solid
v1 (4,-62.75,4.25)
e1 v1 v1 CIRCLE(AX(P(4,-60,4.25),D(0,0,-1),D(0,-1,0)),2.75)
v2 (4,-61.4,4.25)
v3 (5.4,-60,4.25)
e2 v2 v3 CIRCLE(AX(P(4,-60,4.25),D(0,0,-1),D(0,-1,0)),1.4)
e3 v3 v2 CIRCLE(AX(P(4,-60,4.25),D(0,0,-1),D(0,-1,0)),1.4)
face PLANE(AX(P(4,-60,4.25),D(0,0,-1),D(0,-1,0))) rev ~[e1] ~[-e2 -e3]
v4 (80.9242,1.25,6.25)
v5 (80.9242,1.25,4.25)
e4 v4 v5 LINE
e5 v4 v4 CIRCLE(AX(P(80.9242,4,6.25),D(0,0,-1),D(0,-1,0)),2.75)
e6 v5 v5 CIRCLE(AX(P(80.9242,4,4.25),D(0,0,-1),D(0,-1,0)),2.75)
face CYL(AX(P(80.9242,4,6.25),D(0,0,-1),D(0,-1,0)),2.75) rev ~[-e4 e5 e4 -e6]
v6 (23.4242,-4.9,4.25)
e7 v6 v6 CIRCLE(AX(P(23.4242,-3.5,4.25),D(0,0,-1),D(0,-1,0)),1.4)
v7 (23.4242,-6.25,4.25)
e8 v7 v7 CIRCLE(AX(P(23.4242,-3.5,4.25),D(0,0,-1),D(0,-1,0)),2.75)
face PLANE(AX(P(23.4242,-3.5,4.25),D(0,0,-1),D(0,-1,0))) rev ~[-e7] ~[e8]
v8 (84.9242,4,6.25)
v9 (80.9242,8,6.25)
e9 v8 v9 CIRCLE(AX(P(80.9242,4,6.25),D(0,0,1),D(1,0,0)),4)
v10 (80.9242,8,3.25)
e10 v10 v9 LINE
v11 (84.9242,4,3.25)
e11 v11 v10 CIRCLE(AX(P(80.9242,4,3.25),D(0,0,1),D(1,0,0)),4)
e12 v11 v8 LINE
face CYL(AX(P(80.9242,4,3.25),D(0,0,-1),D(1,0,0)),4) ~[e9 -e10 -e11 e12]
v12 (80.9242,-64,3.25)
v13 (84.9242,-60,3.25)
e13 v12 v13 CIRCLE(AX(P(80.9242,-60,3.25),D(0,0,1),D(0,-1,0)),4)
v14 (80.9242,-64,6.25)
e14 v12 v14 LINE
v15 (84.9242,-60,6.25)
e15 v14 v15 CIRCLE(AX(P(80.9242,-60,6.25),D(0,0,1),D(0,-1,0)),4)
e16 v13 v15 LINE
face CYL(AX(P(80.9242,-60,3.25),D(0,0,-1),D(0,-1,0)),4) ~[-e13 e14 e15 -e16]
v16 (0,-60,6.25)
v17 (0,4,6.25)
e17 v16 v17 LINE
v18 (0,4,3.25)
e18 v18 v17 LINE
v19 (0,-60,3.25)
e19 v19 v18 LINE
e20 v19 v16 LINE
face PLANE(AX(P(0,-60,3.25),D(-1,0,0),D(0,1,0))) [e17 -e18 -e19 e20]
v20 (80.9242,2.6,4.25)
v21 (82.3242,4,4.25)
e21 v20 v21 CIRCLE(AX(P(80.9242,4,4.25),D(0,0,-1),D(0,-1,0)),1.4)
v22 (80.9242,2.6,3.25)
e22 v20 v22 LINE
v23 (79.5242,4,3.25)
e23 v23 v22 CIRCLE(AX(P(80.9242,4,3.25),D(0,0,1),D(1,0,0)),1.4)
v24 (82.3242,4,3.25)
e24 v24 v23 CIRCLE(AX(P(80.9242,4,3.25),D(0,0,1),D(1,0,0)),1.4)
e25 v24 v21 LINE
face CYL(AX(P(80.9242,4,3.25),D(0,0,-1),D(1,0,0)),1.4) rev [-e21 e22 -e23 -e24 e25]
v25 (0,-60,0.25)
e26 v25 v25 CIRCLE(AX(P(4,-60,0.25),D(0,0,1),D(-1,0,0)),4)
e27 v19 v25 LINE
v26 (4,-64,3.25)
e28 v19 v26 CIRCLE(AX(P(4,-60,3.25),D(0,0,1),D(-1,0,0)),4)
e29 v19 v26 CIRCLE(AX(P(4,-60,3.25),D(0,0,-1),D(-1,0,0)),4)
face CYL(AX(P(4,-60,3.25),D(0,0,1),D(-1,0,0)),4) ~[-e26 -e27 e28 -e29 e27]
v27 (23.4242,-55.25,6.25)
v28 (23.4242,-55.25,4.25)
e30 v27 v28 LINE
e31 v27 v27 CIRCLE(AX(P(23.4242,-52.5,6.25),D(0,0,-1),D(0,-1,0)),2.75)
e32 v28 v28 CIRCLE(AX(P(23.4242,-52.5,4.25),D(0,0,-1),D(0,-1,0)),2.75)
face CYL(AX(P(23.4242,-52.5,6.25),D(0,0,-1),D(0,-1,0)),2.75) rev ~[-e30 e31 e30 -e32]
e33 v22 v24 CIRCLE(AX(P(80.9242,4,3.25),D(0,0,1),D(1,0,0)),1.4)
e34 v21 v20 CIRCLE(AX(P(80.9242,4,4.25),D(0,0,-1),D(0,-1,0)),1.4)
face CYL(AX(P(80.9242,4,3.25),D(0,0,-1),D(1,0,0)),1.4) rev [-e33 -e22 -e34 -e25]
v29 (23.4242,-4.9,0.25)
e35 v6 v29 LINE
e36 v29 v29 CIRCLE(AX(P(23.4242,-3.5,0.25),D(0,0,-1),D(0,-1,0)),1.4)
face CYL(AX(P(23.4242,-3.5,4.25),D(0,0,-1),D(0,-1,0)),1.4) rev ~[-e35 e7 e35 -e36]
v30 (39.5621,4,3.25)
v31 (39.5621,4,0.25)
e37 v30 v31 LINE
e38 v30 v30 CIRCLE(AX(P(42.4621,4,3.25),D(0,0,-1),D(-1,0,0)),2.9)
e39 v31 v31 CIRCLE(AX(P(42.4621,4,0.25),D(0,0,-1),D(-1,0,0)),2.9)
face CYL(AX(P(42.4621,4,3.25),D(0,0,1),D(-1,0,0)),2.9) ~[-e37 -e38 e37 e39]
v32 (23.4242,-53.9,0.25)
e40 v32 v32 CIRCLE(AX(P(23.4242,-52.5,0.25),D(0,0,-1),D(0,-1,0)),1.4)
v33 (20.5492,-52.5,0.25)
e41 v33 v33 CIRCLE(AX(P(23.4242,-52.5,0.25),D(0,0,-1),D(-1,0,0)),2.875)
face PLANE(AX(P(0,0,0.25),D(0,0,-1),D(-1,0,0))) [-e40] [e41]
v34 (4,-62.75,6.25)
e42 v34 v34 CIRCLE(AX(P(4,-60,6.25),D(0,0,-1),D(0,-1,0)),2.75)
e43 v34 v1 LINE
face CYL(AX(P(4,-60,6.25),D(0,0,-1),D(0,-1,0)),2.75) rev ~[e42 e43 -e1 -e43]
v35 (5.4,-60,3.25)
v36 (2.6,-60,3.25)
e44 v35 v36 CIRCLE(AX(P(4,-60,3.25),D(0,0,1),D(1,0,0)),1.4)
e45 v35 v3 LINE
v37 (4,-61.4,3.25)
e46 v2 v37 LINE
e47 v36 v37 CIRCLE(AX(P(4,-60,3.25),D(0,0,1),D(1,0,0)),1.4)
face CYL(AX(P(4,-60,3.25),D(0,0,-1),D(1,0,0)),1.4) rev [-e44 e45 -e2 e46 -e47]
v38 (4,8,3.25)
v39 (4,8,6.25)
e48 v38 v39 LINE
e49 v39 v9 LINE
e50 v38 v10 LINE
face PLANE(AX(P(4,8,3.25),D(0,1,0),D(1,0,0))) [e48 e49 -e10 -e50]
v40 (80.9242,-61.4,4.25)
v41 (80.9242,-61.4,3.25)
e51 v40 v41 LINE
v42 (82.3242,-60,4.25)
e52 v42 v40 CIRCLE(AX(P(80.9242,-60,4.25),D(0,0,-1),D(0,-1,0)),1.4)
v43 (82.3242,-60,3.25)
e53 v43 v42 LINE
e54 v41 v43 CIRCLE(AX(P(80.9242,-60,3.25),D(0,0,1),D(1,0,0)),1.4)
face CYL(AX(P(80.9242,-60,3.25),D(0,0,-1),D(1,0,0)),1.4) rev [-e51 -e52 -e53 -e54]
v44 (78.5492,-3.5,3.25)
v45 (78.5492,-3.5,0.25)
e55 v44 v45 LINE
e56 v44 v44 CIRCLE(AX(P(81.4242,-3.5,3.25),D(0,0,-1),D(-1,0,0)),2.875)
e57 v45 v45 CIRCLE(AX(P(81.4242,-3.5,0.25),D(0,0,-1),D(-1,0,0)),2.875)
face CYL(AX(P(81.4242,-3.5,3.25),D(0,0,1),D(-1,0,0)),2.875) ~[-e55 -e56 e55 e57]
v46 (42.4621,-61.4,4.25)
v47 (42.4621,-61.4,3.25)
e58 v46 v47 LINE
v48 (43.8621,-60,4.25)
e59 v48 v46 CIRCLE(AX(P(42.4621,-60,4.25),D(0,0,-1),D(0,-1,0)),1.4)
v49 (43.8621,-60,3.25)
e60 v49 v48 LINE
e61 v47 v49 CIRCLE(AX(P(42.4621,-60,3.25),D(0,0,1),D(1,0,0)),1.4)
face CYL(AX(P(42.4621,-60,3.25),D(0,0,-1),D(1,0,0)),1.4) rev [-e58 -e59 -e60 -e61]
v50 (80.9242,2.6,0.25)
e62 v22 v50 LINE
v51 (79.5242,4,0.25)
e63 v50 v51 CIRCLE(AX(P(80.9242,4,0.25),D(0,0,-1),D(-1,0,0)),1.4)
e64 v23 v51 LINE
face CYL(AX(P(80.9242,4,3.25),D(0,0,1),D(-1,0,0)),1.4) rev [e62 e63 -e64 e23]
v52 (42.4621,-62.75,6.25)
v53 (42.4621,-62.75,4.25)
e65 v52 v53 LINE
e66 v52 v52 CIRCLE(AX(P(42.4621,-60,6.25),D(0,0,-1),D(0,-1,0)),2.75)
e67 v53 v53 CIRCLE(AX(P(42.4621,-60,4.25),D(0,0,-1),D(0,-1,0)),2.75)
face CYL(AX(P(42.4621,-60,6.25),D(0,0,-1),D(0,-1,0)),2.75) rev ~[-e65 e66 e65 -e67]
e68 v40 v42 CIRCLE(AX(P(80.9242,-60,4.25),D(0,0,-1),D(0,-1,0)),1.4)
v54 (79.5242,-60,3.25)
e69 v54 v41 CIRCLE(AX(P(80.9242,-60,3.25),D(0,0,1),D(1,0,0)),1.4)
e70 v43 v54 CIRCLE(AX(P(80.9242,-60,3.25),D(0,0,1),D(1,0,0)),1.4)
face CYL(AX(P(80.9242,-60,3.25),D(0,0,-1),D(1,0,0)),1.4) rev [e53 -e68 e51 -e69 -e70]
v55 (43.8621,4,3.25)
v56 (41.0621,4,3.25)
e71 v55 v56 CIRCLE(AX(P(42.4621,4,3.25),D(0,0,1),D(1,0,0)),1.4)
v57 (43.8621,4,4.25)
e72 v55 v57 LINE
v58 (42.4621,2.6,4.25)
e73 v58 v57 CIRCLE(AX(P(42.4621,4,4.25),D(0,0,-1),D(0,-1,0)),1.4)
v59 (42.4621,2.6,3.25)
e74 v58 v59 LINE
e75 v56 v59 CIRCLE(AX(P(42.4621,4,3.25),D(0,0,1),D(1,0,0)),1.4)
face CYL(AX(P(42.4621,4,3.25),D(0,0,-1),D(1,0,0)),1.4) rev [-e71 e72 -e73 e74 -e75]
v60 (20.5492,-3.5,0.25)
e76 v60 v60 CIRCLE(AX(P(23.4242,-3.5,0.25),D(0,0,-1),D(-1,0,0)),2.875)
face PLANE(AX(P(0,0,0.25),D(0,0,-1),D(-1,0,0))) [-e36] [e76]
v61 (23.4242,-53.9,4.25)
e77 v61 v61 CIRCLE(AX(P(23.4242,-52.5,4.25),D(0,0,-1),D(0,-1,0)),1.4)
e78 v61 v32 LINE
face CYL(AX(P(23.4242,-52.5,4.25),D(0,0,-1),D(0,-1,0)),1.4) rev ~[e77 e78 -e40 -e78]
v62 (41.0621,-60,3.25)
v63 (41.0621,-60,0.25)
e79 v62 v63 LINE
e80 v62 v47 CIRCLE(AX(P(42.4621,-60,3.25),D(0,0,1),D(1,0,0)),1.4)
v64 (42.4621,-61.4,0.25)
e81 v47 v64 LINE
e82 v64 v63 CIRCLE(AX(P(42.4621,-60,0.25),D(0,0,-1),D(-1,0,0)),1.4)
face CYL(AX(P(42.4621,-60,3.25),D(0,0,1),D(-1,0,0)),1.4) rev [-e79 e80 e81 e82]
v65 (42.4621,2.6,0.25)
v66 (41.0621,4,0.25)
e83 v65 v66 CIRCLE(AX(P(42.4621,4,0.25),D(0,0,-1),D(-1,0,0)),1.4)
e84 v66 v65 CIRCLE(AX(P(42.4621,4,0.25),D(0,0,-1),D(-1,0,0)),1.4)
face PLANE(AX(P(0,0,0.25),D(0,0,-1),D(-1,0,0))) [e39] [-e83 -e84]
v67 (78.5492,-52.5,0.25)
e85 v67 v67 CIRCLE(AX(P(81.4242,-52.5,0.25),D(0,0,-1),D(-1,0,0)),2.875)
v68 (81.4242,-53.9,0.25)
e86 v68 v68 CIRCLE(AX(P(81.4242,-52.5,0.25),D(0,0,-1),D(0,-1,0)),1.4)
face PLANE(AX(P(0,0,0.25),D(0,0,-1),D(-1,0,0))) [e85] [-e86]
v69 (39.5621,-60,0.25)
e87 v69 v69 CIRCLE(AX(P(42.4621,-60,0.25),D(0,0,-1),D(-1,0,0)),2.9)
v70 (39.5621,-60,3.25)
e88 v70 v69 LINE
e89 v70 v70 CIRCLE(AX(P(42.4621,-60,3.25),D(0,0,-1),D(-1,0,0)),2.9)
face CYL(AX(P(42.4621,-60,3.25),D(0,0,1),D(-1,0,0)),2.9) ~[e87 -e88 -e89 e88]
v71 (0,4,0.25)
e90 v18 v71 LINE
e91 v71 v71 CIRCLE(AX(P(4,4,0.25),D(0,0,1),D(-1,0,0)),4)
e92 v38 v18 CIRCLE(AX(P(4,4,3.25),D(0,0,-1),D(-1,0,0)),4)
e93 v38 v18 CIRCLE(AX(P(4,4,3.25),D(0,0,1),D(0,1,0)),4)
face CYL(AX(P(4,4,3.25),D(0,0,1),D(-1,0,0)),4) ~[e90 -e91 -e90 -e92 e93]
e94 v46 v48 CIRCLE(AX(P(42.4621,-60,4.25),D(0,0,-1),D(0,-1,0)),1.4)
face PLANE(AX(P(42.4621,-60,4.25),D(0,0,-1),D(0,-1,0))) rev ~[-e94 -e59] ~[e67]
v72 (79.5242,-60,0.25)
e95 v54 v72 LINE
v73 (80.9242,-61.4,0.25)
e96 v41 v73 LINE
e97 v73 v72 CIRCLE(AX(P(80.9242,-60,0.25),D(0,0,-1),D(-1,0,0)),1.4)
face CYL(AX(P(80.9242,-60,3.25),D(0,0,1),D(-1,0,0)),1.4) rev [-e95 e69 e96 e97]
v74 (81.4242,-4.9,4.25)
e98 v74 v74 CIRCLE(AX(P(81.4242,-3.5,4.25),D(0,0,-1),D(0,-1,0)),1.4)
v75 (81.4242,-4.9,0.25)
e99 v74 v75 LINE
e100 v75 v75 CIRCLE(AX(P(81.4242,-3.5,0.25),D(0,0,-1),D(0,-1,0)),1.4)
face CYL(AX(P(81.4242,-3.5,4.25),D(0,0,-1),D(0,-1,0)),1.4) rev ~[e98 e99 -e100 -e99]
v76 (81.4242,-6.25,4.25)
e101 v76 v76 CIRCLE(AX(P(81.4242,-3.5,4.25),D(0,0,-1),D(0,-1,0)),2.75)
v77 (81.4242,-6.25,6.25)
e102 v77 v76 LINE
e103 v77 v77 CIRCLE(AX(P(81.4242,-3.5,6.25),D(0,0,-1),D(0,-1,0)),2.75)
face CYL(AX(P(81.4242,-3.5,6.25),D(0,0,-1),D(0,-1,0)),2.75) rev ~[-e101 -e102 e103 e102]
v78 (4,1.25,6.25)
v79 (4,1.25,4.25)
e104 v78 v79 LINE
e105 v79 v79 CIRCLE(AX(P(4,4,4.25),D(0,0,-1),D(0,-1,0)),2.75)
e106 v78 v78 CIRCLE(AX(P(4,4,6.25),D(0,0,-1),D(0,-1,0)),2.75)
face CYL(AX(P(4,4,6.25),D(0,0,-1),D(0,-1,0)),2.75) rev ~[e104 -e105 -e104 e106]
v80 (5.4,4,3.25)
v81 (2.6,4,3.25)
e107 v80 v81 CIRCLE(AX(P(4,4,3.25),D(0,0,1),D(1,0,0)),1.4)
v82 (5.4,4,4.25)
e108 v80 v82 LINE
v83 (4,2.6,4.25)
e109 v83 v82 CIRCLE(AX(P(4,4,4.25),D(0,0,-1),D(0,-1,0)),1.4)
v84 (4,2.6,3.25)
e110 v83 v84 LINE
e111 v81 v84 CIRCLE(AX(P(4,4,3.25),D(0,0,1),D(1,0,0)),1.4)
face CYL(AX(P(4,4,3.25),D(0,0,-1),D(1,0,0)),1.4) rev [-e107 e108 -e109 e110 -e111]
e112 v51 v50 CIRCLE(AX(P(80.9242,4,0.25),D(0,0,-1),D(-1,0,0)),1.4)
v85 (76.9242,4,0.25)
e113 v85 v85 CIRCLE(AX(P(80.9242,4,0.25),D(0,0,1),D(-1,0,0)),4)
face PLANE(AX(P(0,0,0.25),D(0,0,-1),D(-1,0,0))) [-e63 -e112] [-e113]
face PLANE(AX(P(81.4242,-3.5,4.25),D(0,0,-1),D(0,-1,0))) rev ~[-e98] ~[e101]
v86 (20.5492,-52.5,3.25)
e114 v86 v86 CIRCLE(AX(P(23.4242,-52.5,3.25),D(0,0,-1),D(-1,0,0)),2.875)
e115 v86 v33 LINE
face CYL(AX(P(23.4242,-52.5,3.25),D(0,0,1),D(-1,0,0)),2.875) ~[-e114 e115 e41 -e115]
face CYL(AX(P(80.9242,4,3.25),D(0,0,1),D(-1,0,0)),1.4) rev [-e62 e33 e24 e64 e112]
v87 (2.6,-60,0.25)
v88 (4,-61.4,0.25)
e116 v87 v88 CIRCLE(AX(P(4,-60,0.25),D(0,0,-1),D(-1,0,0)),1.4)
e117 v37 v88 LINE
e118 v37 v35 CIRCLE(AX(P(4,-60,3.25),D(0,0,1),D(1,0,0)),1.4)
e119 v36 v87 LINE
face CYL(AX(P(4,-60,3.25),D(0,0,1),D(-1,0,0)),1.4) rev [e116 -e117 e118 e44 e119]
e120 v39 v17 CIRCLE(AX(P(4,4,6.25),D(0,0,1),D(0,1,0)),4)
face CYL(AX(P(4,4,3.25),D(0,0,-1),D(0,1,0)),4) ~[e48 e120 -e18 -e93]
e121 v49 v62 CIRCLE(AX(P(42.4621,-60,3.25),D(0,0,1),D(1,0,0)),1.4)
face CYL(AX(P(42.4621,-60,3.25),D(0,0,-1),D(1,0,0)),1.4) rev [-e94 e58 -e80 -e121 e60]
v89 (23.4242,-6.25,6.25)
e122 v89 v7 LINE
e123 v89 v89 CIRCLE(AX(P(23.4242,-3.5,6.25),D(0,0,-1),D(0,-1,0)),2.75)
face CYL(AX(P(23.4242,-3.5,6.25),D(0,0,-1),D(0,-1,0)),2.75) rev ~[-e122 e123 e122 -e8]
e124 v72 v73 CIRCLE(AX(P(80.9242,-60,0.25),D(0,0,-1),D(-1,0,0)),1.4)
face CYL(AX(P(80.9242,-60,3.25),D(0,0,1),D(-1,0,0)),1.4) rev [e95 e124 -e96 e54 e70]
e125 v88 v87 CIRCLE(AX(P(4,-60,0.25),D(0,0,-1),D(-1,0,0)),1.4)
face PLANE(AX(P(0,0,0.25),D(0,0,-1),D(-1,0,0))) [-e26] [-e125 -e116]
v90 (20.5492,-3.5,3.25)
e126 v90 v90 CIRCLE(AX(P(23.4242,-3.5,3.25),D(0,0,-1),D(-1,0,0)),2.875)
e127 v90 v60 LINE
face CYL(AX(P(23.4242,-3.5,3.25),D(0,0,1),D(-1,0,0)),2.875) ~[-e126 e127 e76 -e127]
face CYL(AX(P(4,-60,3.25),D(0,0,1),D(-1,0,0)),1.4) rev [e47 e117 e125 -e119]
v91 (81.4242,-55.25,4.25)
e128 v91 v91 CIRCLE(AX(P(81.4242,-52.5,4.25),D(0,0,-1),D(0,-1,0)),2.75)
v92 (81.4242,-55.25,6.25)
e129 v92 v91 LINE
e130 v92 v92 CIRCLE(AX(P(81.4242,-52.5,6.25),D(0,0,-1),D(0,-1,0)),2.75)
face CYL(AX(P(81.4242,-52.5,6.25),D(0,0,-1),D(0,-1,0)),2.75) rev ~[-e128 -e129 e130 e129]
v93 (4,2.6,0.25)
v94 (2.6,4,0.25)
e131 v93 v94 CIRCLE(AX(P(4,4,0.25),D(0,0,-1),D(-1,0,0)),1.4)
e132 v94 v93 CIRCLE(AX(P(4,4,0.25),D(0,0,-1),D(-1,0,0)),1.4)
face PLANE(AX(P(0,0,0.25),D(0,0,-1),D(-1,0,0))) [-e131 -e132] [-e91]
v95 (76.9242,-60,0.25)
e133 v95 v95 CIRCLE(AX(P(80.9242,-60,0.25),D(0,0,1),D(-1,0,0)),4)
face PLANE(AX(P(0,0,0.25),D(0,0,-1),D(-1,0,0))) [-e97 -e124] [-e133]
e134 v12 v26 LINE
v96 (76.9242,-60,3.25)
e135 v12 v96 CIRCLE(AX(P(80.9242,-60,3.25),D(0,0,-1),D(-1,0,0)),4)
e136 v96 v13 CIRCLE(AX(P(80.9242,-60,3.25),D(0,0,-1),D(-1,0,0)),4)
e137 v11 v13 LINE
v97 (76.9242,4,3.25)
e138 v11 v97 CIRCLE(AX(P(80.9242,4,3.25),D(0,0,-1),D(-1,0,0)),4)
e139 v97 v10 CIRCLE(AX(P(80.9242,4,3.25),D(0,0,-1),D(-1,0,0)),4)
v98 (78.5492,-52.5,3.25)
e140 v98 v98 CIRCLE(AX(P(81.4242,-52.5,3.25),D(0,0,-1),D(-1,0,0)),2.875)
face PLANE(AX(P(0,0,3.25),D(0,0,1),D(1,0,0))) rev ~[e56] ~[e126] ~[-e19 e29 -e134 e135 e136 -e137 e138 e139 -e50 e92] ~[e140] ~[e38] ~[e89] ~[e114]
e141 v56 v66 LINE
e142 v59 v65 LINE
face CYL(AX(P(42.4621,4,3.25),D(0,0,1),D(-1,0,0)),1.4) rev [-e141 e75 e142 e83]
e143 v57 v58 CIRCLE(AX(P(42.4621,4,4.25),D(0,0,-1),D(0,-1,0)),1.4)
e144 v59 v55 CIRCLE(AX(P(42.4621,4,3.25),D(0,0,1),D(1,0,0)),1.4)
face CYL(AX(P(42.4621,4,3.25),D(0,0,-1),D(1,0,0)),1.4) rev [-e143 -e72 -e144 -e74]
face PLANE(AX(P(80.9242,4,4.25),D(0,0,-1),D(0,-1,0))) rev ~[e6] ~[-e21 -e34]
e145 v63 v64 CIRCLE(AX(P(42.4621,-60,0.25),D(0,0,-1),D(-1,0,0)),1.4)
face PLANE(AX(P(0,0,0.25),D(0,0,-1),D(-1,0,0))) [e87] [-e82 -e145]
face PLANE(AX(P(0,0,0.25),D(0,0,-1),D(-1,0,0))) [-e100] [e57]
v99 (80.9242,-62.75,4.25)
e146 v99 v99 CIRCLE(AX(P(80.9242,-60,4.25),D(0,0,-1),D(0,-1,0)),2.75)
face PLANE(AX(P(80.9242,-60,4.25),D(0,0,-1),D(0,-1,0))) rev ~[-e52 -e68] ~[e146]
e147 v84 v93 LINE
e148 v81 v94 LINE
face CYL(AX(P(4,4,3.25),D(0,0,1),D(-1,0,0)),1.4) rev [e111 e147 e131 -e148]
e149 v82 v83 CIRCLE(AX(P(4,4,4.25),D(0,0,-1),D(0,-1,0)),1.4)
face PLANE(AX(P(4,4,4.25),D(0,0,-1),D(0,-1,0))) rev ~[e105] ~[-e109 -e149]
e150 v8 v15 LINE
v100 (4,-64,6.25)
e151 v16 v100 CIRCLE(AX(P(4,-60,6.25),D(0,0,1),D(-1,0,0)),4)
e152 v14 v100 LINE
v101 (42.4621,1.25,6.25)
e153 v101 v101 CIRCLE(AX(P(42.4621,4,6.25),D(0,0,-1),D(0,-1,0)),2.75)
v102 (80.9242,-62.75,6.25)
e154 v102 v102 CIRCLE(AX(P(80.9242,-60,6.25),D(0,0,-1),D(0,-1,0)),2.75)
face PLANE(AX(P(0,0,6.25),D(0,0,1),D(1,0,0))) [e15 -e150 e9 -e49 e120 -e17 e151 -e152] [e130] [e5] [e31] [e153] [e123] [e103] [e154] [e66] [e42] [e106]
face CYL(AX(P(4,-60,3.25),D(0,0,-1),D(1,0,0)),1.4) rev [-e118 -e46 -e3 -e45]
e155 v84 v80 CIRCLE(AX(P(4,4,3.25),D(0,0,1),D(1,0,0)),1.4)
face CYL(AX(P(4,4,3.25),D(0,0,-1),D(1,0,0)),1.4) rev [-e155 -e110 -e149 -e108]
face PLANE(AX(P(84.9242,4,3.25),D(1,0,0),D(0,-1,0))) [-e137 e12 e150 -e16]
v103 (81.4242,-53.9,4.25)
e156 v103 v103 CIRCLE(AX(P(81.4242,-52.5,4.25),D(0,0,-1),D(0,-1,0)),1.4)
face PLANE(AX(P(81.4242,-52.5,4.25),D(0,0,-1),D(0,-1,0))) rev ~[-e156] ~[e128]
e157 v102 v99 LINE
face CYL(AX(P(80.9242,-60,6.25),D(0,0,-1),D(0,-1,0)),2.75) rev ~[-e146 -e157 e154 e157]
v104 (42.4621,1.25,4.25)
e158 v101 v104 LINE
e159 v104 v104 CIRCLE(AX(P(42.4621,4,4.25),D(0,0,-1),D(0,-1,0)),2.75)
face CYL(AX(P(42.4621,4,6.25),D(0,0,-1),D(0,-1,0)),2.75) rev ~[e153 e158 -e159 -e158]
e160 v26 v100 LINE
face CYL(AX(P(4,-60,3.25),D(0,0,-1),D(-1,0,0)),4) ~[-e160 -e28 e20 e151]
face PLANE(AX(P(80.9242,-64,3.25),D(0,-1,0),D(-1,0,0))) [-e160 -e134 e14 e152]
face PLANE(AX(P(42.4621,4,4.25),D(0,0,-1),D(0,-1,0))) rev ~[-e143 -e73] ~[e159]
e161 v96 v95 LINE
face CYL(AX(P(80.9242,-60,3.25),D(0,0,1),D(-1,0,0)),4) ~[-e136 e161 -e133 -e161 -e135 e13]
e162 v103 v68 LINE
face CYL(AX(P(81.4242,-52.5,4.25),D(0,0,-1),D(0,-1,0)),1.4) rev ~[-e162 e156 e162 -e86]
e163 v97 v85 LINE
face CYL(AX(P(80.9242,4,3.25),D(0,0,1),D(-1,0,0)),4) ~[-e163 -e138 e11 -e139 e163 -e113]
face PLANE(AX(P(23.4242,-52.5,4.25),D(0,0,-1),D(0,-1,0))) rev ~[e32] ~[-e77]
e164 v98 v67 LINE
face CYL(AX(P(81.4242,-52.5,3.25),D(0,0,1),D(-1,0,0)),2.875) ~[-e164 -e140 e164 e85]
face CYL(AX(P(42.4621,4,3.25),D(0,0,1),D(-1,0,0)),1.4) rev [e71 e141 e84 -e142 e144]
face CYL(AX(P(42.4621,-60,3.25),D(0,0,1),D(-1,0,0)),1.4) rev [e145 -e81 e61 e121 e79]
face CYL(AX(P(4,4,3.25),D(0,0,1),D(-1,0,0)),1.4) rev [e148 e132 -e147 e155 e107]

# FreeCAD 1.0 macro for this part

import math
import FreeCAD as App
import Part
import Sketcher

V = App.Vector

doc = App.newDocument("Part")
body = doc.addObject("PartDesign::Body", "Body")

sketch1 = body.newObject("Sketcher::SketchObject", "Sketch")
sketch1.AttachmentSupport = (doc.getObject("XY_Plane"), [""])
sketch1.MapMode = "FlatFace"
sketch1.AttachmentOffset = App.Placement(V(0, 0, 3.25), App.Rotation())
sketch1.addGeometry([
    Part.LineSegment(V(4, -64, 0), V(80.9242, -64, 0)),
    Part.ArcOfCircle(Part.Circle(V(80.9242, -60, 0), V(0, 0, 1), 4), math.radians(-90), math.radians(0)),
    Part.LineSegment(V(84.9242, -60, 0), V(84.9242, 4, 0)),
    Part.ArcOfCircle(Part.Circle(V(80.9242, 4, 0), V(0, 0, 1), 4), math.radians(0), math.radians(90)),
    Part.LineSegment(V(80.9242, 8, 0), V(4, 8, 0)),
    Part.ArcOfCircle(Part.Circle(V(4, 4, 0), V(0, 0, 1), 4), math.radians(90), math.radians(180)),
    Part.LineSegment(V(0, 4, 0), V(0, -60, 0)),
    Part.ArcOfCircle(Part.Circle(V(4, -60, 0), V(0, 0, 1), 4), math.radians(180), math.radians(270)),
    Part.Circle(V(4, -60, 0), V(0, 0, 1), 1.4),
    Part.Circle(V(23.4242, -52.5, 0), V(0, 0, 1), 1.375),
    Part.Circle(V(42.4621, -60, 0), V(0, 0, 1), 1.4),
    Part.Circle(V(80.9242, -60, 0), V(0, 0, 1), 1.4),
    Part.Circle(V(81.4242, -52.5, 0), V(0, 0, 1), 1.375),
    Part.Circle(V(4, 4, 0), V(0, 0, 1), 1.4),
    Part.Circle(V(23.4242, -3.5, 0), V(0, 0, 1), 1.375),
    Part.Circle(V(42.4621, 4, 0), V(0, 0, 1), 1.4),
    Part.Circle(V(81.4242, -3.5, 0), V(0, 0, 1), 1.375),
    Part.Circle(V(80.9242, 4, 0), V(0, 0, 1), 1.4),
], False)
sketch1.addConstraint([
    Sketcher.Constraint("Tangent", 0, 2, 1, 1),
    Sketcher.Constraint("Tangent", 1, 2, 2, 1),
    Sketcher.Constraint("Tangent", 2, 2, 3, 1),
    Sketcher.Constraint("Tangent", 3, 2, 4, 1),
    Sketcher.Constraint("Tangent", 4, 2, 5, 1),
    Sketcher.Constraint("Tangent", 5, 2, 6, 1),
    Sketcher.Constraint("Tangent", 6, 2, 7, 1),
    Sketcher.Constraint("Tangent", 7, 2, 0, 1),
    Sketcher.Constraint("Horizontal", 0),
    Sketcher.Constraint("Vertical", 2),
    Sketcher.Constraint("Horizontal", 4),
    Sketcher.Constraint("Vertical", 6),
    Sketcher.Constraint("Coincident", 8, 3, 7, 3),
    Sketcher.Constraint("Coincident", 11, 3, 1, 3),
    Sketcher.Constraint("Coincident", 13, 3, 5, 3),
    Sketcher.Constraint("Coincident", 17, 3, 3, 3),
    Sketcher.Constraint("Equal", 1, 3),
    Sketcher.Constraint("Equal", 3, 5),
    Sketcher.Constraint("Equal", 5, 7),
    Sketcher.Constraint("Equal", 8, 10),
    Sketcher.Constraint("Equal", 10, 11),
    Sketcher.Constraint("Equal", 9, 12),
    Sketcher.Constraint("Equal", 11, 13),
    Sketcher.Constraint("Equal", 12, 14),
    Sketcher.Constraint("Equal", 13, 15),
    Sketcher.Constraint("Equal", 14, 16),
    Sketcher.Constraint("Equal", 15, 17),
    Sketcher.Constraint("PointOnObject", 5, 2, -2),
    Sketcher.Constraint("Horizontal", 8, 3, 10, 3),
    Sketcher.Constraint("Horizontal", 9, 3, 12, 3),
    Sketcher.Constraint("Horizontal", 13, 3, 15, 3),
    Sketcher.Constraint("Horizontal", 14, 3, 16, 3),
    Sketcher.Constraint("Vertical", 9, 3, 14, 3),
    Sketcher.Constraint("Vertical", 10, 3, 15, 3),
    Sketcher.Constraint("Vertical", 12, 3, 16, 3),
    Sketcher.Constraint("Radius", 1, 4.0),
    Sketcher.Constraint("Diameter", 8, 2.8),
    Sketcher.Constraint("DistanceY", -1, 1, 3, 3, 4.0),
    Sketcher.Constraint("Diameter", 9, 2.75),
    Sketcher.Constraint("DistanceY", 2, 1, 2, 2, 64.0),
    Sketcher.Constraint("DistanceX", 9, 3, 12, 3, 58.0),
    Sketcher.Constraint("DistanceY", 9, 3, 14, 3, 49.0),
    Sketcher.Constraint("DistanceY", 9, 3, -1, 1, 52.5),
    Sketcher.Constraint("DistanceX", 9, 3, 1, 3, 57.5),
    Sketcher.Constraint("DistanceX", 0, 1, 0, 2, 76.9242),
    Sketcher.Constraint("DistanceX", -1, 1, 10, 3, 42.462),
])
pad1 = body.newObject("PartDesign::Pad", "Pad")
pad1.Profile = sketch1
pad1.Length = 3

sketch2 = body.newObject("Sketcher::SketchObject", "Sketch001")
sketch2.AttachmentSupport = (doc.getObject("XY_Plane"), [""])
sketch2.MapMode = "FlatFace"
sketch2.AttachmentOffset = App.Placement(V(0, 0, 3.25), App.Rotation())
sketch2.addGeometry([
    Part.Circle(V(4, -60, 0), V(0, 0, 1), 4),
    Part.Circle(V(4, -60, 0), V(0, 0, 1), 1.4),
    Part.Circle(V(80.9242, -60, 0), V(0, 0, 1), 4),
    Part.Circle(V(80.9242, -60, 0), V(0, 0, 1), 1.4),
    Part.Circle(V(80.9242, 4, 0), V(0, 0, 1), 4),
    Part.Circle(V(80.9242, 4, 0), V(0, 0, 1), 1.4),
    Part.Circle(V(4, 4, 0), V(0, 0, 1), 4),
    Part.Circle(V(4, 4, 0), V(0, 0, 1), 1.4),
    Part.Circle(V(81.4242, -3.5, 0), V(0, 0, 1), 2.875),
    Part.Circle(V(81.4242, -3.5, 0), V(0, 0, 1), 1.375),
    Part.Circle(V(81.4242, -52.5, 0), V(0, 0, 1), 2.875),
    Part.Circle(V(81.4242, -52.5, 0), V(0, 0, 1), 1.375),
    Part.Circle(V(23.4242, -52.5, 0), V(0, 0, 1), 2.875),
    Part.Circle(V(23.4242, -52.5, 0), V(0, 0, 1), 1.375),
    Part.Circle(V(23.4242, -3.5, 0), V(0, 0, 1), 2.875),
    Part.Circle(V(23.4242, -3.5, 0), V(0, 0, 1), 1.375),
    Part.Circle(V(42.4621, 4, 0), V(0, 0, 1), 2.9),
    Part.Circle(V(42.4621, 4, 0), V(0, 0, 1), 1.4),
    Part.Circle(V(42.4621, -60, 0), V(0, 0, 1), 2.9),
    Part.Circle(V(42.4621, -60, 0), V(0, 0, 1), 1.4),
], False)
sketch2.addConstraint([
    Sketcher.Constraint("Coincident", 1, 3, 0, 3),
    Sketcher.Constraint("Coincident", 3, 3, 2, 3),
    Sketcher.Constraint("Coincident", 5, 3, 4, 3),
    Sketcher.Constraint("Coincident", 7, 3, 6, 3),
    Sketcher.Constraint("Coincident", 9, 3, 8, 3),
    Sketcher.Constraint("Coincident", 11, 3, 10, 3),
    Sketcher.Constraint("Coincident", 13, 3, 12, 3),
    Sketcher.Constraint("Coincident", 15, 3, 14, 3),
    Sketcher.Constraint("Coincident", 17, 3, 16, 3),
    Sketcher.Constraint("Coincident", 19, 3, 18, 3),
    Sketcher.Constraint("Equal", 0, 2),
    Sketcher.Constraint("Equal", 1, 3),
    Sketcher.Constraint("Equal", 2, 4),
    Sketcher.Constraint("Equal", 3, 5),
    Sketcher.Constraint("Equal", 4, 6),
    Sketcher.Constraint("Equal", 5, 7),
    Sketcher.Constraint("Equal", 8, 10),
    Sketcher.Constraint("Equal", 9, 11),
    Sketcher.Constraint("Equal", 10, 12),
    Sketcher.Constraint("Equal", 11, 13),
    Sketcher.Constraint("Equal", 12, 14),
    Sketcher.Constraint("Equal", 13, 15),
    Sketcher.Constraint("Equal", 7, 17),
    Sketcher.Constraint("Equal", 16, 18),
    Sketcher.Constraint("Equal", 17, 19),
    Sketcher.Constraint("Horizontal", 1, 3, 2, 3),
    Sketcher.Constraint("Horizontal", 5, 3, 6, 3),
    Sketcher.Constraint("Horizontal", 11, 3, 12, 3),
    Sketcher.Constraint("Horizontal", 9, 3, 14, 3),
    Sketcher.Constraint("Horizontal", 7, 3, 16, 3),
    Sketcher.Constraint("Horizontal", 3, 3, 18, 3),
    Sketcher.Constraint("Vertical", 3, 3, 4, 3),
    Sketcher.Constraint("Vertical", 1, 3, 6, 3),
    Sketcher.Constraint("Vertical", 9, 3, 10, 3),
    Sketcher.Constraint("Vertical", 13, 3, 14, 3),
    Sketcher.Constraint("Vertical", 17, 3, 18, 3),
    Sketcher.Constraint("Diameter", 0, 8.0),
    Sketcher.Constraint("Diameter", 1, 2.8),
    Sketcher.Constraint("Diameter", 16, 5.8),
    Sketcher.Constraint("Diameter", 8, 5.75),
    Sketcher.Constraint("Diameter", 9, 2.75),
    Sketcher.Constraint("DistanceX", -1, 1, 0, 3, 4.0),
    Sketcher.Constraint("DistanceY", 0, 3, -1, 1, 60.0),
    Sketcher.Constraint("DistanceY", -1, 1, 4, 3, 4.0),
    Sketcher.Constraint("DistanceY", 10, 3, 8, 3, 49.0),
    Sketcher.Constraint("DistanceX", 12, 3, 10, 3, 58.0),
    Sketcher.Constraint("DistanceY", 8, 3, -1, 1, 3.5),
    Sketcher.Constraint("DistanceX", 4, 3, 8, 3, 0.5),
    Sketcher.Constraint("DistanceX", -1, 1, 16, 3, 42.462),
    Sketcher.Constraint("DistanceX", 14, 3, 16, 3, 19.038),
])
pad2 = body.newObject("PartDesign::Pad", "Pad001")
pad2.Profile = sketch2
pad2.Length = 3
pad2.Reversed = True

sketch3 = body.newObject("Sketcher::SketchObject", "Sketch002")
sketch3.AttachmentSupport = (doc.getObject("XY_Plane"), [""])
sketch3.MapMode = "FlatFace"
sketch3.AttachmentOffset = App.Placement(V(0, 0, 6.25), App.Rotation())
sketch3.addGeometry([
    Part.Circle(V(4, 4, 0), V(0, 0, 1), 1.4),
    Part.Circle(V(4, -60, 0), V(0, 0, 1), 1.4),
    Part.Circle(V(42.4621, -60, 0), V(0, 0, 1), 1.4),
    Part.Circle(V(80.9242, -60, 0), V(0, 0, 1), 1.4),
    Part.Circle(V(80.9242, 4, 0), V(0, 0, 1), 1.4),
    Part.Circle(V(42.4621, 4, 0), V(0, 0, 1), 1.4),
    Part.Circle(V(81.4242, -3.5, 0), V(0, 0, 1), 1.4),
    Part.Circle(V(23.4242, -3.5, 0), V(0, 0, 1), 1.4),
    Part.Circle(V(23.4242, -52.5, 0), V(0, 0, 1), 1.4),
    Part.Circle(V(81.4242, -52.5, 0), V(0, 0, 1), 1.4),
], False)
sketch3.addConstraint([
    Sketcher.Constraint("Equal", 0, 1),
    Sketcher.Constraint("Equal", 1, 2),
    Sketcher.Constraint("Equal", 2, 3),
    Sketcher.Constraint("Equal", 3, 4),
    Sketcher.Constraint("Equal", 4, 5),
    Sketcher.Constraint("Equal", 5, 6),
    Sketcher.Constraint("Equal", 6, 7),
    Sketcher.Constraint("Equal", 7, 8),
    Sketcher.Constraint("Equal", 8, 9),
    Sketcher.Constraint("Horizontal", 1, 3, 2, 3),
    Sketcher.Constraint("Horizontal", 2, 3, 3, 3),
    Sketcher.Constraint("Horizontal", 0, 3, 4, 3),
    Sketcher.Constraint("Horizontal", 4, 3, 5, 3),
    Sketcher.Constraint("Horizontal", 6, 3, 7, 3),
    Sketcher.Constraint("Horizontal", 8, 3, 9, 3),
    Sketcher.Constraint("Vertical", 0, 3, 1, 3),
    Sketcher.Constraint("Vertical", 3, 3, 4, 3),
    Sketcher.Constraint("Vertical", 2, 3, 5, 3),
    Sketcher.Constraint("Vertical", 7, 3, 8, 3),
    Sketcher.Constraint("Vertical", 6, 3, 9, 3),
    Sketcher.Constraint("Diameter", 0, 2.8),
    Sketcher.Constraint("DistanceX", -1, 1, 0, 3, 4.0),
    Sketcher.Constraint("DistanceY", -1, 1, 0, 3, 4.0),
    Sketcher.Constraint("DistanceY", 1, 3, -1, 1, 60.0),
    Sketcher.Constraint("DistanceX", 7, 3, 6, 3, 58.0),
    Sketcher.Constraint("DistanceY", 8, 3, 7, 3, 49.0),
    Sketcher.Constraint("DistanceY", 6, 3, -1, 1, 3.5),
    Sketcher.Constraint("DistanceX", 4, 3, 6, 3, 0.5),
    Sketcher.Constraint("DistanceX", -1, 1, 2, 3, 42.462),
    Sketcher.Constraint("DistanceX", 2, 3, 3, 3, 38.462),
])
doc.recompute()
hole = body.newObject("PartDesign::Hole", "Hole")
hole.Profile = sketch3
hole.ThreadType = "None"
hole.Diameter = 2.8
hole.DepthType = "Dimension"
hole.Depth = 20
hole.DrillPoint = "Angled"
hole.DrillPointAngle = 118
hole.HoleCutType = "Counterbore"
hole.HoleCutDiameter = 5.5
hole.HoleCutDepth = 2

doc.recompute()
